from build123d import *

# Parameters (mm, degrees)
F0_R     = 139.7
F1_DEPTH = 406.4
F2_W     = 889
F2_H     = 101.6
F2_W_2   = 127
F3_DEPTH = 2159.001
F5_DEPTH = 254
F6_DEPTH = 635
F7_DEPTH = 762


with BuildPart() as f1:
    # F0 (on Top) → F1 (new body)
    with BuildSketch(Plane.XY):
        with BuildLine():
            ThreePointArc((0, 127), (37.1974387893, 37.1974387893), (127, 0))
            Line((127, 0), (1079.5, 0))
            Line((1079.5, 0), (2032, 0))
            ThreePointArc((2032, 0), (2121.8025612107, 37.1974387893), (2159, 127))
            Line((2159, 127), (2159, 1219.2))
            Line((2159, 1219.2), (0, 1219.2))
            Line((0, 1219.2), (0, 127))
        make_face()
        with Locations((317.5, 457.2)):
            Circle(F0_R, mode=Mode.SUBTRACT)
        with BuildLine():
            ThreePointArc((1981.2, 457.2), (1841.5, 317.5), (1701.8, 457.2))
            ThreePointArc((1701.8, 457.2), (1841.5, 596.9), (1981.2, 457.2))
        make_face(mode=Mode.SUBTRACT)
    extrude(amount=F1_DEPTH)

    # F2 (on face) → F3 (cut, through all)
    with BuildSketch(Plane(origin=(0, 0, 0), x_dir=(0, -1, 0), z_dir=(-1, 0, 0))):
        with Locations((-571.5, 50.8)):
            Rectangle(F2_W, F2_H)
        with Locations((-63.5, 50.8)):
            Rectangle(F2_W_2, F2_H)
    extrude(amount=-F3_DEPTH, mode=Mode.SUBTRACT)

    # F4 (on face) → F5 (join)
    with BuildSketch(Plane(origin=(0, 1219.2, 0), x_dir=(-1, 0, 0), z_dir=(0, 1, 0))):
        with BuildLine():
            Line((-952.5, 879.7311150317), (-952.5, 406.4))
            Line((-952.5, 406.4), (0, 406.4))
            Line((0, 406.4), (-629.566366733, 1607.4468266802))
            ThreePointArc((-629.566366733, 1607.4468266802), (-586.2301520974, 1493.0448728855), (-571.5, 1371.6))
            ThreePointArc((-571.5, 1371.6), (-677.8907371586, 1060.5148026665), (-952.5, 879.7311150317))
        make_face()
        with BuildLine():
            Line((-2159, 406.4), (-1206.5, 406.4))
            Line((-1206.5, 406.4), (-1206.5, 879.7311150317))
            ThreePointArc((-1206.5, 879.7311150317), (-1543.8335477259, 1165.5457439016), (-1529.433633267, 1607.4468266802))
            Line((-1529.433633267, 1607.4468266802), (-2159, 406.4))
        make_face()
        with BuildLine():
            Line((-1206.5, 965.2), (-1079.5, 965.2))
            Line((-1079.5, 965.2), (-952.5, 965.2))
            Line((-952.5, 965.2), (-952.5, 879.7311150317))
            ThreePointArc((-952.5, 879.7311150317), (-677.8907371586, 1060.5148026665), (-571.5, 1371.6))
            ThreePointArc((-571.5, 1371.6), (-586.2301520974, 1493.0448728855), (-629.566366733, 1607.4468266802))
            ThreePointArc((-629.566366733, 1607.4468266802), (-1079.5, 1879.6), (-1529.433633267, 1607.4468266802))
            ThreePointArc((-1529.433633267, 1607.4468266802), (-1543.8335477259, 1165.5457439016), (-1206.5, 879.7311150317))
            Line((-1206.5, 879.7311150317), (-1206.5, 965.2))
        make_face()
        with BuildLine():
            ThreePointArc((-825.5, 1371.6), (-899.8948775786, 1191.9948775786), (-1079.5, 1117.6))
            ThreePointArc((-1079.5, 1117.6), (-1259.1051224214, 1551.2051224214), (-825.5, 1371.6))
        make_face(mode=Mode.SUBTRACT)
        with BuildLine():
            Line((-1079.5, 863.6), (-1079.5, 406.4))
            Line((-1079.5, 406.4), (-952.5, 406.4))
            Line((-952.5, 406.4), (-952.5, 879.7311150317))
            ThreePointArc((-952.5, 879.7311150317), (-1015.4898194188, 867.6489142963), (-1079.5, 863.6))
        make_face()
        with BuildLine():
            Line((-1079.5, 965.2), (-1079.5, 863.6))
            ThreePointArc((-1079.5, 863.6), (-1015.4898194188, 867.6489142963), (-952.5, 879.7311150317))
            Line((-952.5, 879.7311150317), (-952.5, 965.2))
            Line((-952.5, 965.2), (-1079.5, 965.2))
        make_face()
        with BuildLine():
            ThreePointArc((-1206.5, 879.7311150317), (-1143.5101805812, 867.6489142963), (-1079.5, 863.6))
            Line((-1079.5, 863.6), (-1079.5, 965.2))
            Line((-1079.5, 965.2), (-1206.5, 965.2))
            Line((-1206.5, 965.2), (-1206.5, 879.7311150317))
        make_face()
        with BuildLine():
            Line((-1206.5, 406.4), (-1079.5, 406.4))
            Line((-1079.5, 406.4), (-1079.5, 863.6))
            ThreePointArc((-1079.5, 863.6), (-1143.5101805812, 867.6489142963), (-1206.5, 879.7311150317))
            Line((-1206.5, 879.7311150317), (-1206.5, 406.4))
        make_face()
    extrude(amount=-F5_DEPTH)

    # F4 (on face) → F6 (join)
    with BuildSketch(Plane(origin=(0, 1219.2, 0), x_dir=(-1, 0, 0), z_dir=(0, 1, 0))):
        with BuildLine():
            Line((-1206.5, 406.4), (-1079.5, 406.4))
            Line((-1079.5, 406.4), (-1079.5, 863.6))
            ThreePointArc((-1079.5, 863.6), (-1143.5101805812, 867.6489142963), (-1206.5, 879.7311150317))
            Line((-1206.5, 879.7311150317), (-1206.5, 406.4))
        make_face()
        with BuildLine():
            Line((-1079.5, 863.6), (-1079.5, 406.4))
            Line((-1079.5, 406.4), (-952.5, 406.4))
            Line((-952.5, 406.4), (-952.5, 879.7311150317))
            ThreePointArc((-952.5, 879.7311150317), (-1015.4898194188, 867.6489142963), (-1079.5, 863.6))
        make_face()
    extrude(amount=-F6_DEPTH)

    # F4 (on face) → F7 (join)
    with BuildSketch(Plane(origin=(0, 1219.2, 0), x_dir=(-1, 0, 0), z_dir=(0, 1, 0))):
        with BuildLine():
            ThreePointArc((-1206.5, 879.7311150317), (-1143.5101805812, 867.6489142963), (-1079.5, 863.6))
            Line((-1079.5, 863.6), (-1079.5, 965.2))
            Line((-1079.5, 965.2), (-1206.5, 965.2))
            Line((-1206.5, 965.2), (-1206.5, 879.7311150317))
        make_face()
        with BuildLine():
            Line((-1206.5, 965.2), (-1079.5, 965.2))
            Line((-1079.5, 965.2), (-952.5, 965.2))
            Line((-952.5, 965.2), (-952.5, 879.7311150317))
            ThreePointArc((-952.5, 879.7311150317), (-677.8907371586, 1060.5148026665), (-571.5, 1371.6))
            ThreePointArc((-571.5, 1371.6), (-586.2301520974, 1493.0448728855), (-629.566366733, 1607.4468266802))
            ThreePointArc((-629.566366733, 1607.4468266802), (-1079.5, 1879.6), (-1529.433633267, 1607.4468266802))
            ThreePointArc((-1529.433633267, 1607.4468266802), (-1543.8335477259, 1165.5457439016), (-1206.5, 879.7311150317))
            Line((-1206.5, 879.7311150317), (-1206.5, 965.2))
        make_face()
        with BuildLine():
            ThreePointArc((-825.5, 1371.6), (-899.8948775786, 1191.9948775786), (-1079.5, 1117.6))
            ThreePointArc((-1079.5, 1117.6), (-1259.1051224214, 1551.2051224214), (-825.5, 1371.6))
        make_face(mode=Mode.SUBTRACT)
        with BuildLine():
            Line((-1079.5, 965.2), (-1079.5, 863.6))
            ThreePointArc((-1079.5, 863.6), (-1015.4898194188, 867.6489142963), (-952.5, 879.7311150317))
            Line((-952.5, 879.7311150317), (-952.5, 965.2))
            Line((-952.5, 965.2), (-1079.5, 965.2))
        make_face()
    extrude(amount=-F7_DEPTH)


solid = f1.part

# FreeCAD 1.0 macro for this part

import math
import FreeCAD as App
import Part
import Sketcher
from FreeCAD import Vector
Q = App.Units.Quantity


def add_polygon(sketch, points):
    """Adds a closed chain of lines whose ends are joined by coincident constraints."""
    first, n = sketch.GeometryCount, len(points)
    for a, b in zip(points, points[1:] + points[:1]):
        sketch.addGeometry(Part.LineSegment(App.Vector(*a, 0), App.Vector(*b, 0)), False)
    for i in range(n):
        sketch.addConstraint(Sketcher.Constraint("Coincident", first + i, 2, first + (i + 1) % n, 1))

doc = App.newDocument("Part")
body = doc.addObject("PartDesign::Body", "Body")

# Sketch on XY plane
sketch1 = doc.addObject("Sketcher::SketchObject", "Sketch")
body.addObject(sketch1)
sketch1.AttachmentSupport = (doc.XY_Plane, [""])
sketch1.MapMode = "FlatFace"
sketch1.addGeometry([
    Part.ArcOfCircle(Part.Circle(Vector(127, 127, 0), Vector(0, 0, 1), 127), math.radians(180), math.radians(270)),  # 0
    Part.LineSegment(Vector(127, 0, 0), Vector(2032, 0, 0)),  # 1
    Part.ArcOfCircle(Part.Circle(Vector(2032, 127, 0), Vector(0, 0, 1), 127), math.radians(-90), math.radians(0)),  # 2
    Part.LineSegment(Vector(2159, 127, 0), Vector(2159, 1219, 0)),  # 3
    Part.LineSegment(Vector(2159, 1219, 0), Vector(0, 1219, 0)),  # 4
    Part.LineSegment(Vector(0, 1219, 0), Vector(0, 127, 0)),  # 5
    Part.Circle(Vector(318, 457, 0), Vector(0, 0, 1), 140),  # 6
    Part.Circle(Vector(1842, 457, 0), Vector(0, 0, 1), 140),  # 7
], False)
sketch1.addConstraint([
    Sketcher.Constraint("Tangent", 0, 2, 1, 1),
    Sketcher.Constraint("Tangent", 1, 2, 2, 1),
    Sketcher.Constraint("Tangent", 2, 2, 3, 1),
    Sketcher.Constraint("Coincident", 3, 2, 4, 1),
    Sketcher.Constraint("Coincident", 4, 2, 5, 1),
    Sketcher.Constraint("Tangent", 5, 2, 0, 1),
    Sketcher.Constraint("Horizontal", 1),
    Sketcher.Constraint("Vertical", 3),
    Sketcher.Constraint("Horizontal", 4),
    Sketcher.Constraint("Vertical", 5),
    Sketcher.Constraint("Equal", 0, 2),
    Sketcher.Constraint("Equal", 6, 7),
    Sketcher.Constraint("PointOnObject", 0, 2, -1),
    Sketcher.Constraint("PointOnObject", 4, 2, -2),
    Sketcher.Constraint("Horizontal", 6, 3, 7, 3),
    Sketcher.Constraint("Diameter", 6, Q("11 in")),
    Sketcher.Constraint("Radius", 0, Q("5 in")),
    Sketcher.Constraint("DistanceX", 1, 1, 1, 2, Q("75 in")),
    Sketcher.Constraint("DistanceY", 3, 1, 3, 2, Q("43 in")),
    Sketcher.Constraint("DistanceY", -1, 1, 6, 3, Q("18 in")),
    Sketcher.Constraint("DistanceX", 6, 3, 7, 3, Q("60 in")),
    Sketcher.Constraint("DistanceX", -1, 1, 6, 3, Q("12.5 in")),
])
pad1 = doc.addObject("PartDesign::Pad", "Pad")
body.addObject(pad1)
pad1.Profile = sketch1
pad1.Length = Q("16 in")

# Sketch on YZ plane
sketch2 = doc.addObject("Sketcher::SketchObject", "Sketch001")
body.addObject(sketch2)
sketch2.AttachmentSupport = (doc.YZ_Plane, [""])
sketch2.MapMode = "FlatFace"
add_polygon(sketch2, [(1016, 102), (1016, 0), (0, 0), (0, 102)])  # lines 0-3
sketch2.addConstraint([
    Sketcher.Constraint("Vertical", 0),
    Sketcher.Constraint("Horizontal", 1),
    Sketcher.Constraint("Vertical", 2),
    Sketcher.Constraint("Horizontal", 3),
    Sketcher.Constraint("Coincident", 1, 2, -1, 1),
    Sketcher.Constraint("DistanceX", 1, 2, 1, 1, Q("40 in")),
    Sketcher.Constraint("DistanceY", 0, 2, 0, 1, Q("4 in")),
])
pocket1 = doc.addObject("PartDesign::Pocket", "Pocket")
body.addObject(pocket1)
pocket1.Profile = sketch2
pocket1.Type = "ThroughAll"
pocket1.Reversed = True

# Sketch on XZ plane
sketch3 = doc.addObject("Sketcher::SketchObject", "Sketch002")
body.addObject(sketch3)
sketch3.AttachmentSupport = (doc.XZ_Plane, [""])
sketch3.MapMode = "FlatFace"
sketch3.AttachmentOffset = App.Placement(Vector(0, 0, -48 * 25.4), App.Rotation())
sketch3.addGeometry([
    Part.LineSegment(Vector(0, 406, 0), Vector(630, 1607, 0)),  # 0
    Part.ArcOfCircle(Part.Circle(Vector(1080, 1372, 0), Vector(0, 0, 1), 508), math.radians(28), math.radians(152)),  # 1
    Part.LineSegment(Vector(1529, 1607, 0), Vector(2159, 406, 0)),  # 2
    Part.LineSegment(Vector(2159, 406, 0), Vector(0, 406, 0)),  # 3
    Part.Circle(Vector(1080, 1372, 0), Vector(0, 0, 1), 254),  # 4
], False)
sketch3.addConstraint([
    Sketcher.Constraint("Tangent", 0, 2, 1, 2),
    Sketcher.Constraint("Tangent", 1, 1, 2, 1),
    Sketcher.Constraint("Coincident", 2, 2, 3, 1),
    Sketcher.Constraint("Coincident", 3, 2, 0, 1),
    Sketcher.Constraint("Horizontal", 3),
    Sketcher.Constraint("Coincident", 4, 3, 1, 3),
    Sketcher.Constraint("PointOnObject", 3, 2, -2),
    Sketcher.Constraint("Equal", 0, 2),
    Sketcher.Constraint("Diameter", 4, Q("20 in")),
    Sketcher.Constraint("Radius", 1, Q("20 in")),
    Sketcher.Constraint("DistanceX", 3, 2, 3, 1, Q("85 in")),
    Sketcher.Constraint("DistanceY", -1, 1, 1, 3, Q("54 in")),
    Sketcher.Constraint("DistanceY", -1, 1, 2, 2, Q("16 in")),
])
pad2 = doc.addObject("PartDesign::Pad", "Pad001")
body.addObject(pad2)
pad2.Profile = sketch3
pad2.Length = Q("10 in")

# Sketch on XZ plane
sketch4 = doc.addObject("Sketcher::SketchObject", "Sketch003")
body.addObject(sketch4)
sketch4.AttachmentSupport = (doc.XZ_Plane, [""])
sketch4.MapMode = "FlatFace"
sketch4.AttachmentOffset = App.Placement(Vector(0, 0, -48 * 25.4), App.Rotation())
sketch4.addGeometry([
    Part.LineSegment(Vector(1206, 406, 0), Vector(952, 406, 0)),
    Part.LineSegment(Vector(952, 406, 0), Vector(952, 880, 0)),
    Part.ArcOfCircle(Part.Circle(Vector(1080, 1372, 0), Vector(0, 0, 1), 508), math.radians(-104), math.radians(-76)),
    Part.LineSegment(Vector(1206, 880, 0), Vector(1206, 406, 0)),
], False)
sketch4.addConstraint([
    Sketcher.Constraint("Coincident", 0, 2, 1, 1),
    Sketcher.Constraint("Coincident", 1, 2, 2, 1),
    Sketcher.Constraint("Coincident", 2, 2, 3, 1),
    Sketcher.Constraint("Coincident", 3, 2, 0, 1),
    Sketcher.Constraint("Horizontal", 0),
    Sketcher.Constraint("Vertical", 1),
    Sketcher.Constraint("Vertical", 3),
    Sketcher.Constraint("Horizontal", 1, 2, 2, 2),
    Sketcher.Constraint("Radius", 2, Q("20 in")),
    Sketcher.Constraint("DistanceX", 0, 2, 0, 1, Q("10 in")),
    Sketcher.Constraint("DistanceY", -1, 1, 2, 3, Q("54 in")),
    Sketcher.Constraint("DistanceY", -1, 1, 0, 2, Q("16 in")),
    Sketcher.Constraint("DistanceX", -1, 1, 2, 3, Q("42.5 in")),
])
pad3 = doc.addObject("PartDesign::Pad", "Pad002")
body.addObject(pad3)
pad3.Profile = sketch4
pad3.Length = Q("25 in")

# Sketch on XZ plane
sketch5 = doc.addObject("Sketcher::SketchObject", "Sketch004")
body.addObject(sketch5)
sketch5.AttachmentSupport = (doc.XZ_Plane, [""])
sketch5.MapMode = "FlatFace"
sketch5.AttachmentOffset = App.Placement(Vector(0, 0, -48 * 25.4), App.Rotation())
sketch5.addGeometry([
    Part.Circle(Vector(1080, 1372, 0), Vector(0, 0, 1), 508),
    Part.Circle(Vector(1080, 1372, 0), Vector(0, 0, 1), 254),
], False)
sketch5.addConstraint([
    Sketcher.Constraint("Coincident", 1, 3, 0, 3),
    Sketcher.Constraint("Diameter", 0, Q("40 in")),
    Sketcher.Constraint("Diameter", 1, Q("20 in")),
    Sketcher.Constraint("DistanceY", -1, 1, 0, 3, Q("54 in")),
    Sketcher.Constraint("DistanceX", -1, 1, 0, 3, Q("42.5 in")),
])
pad4 = doc.addObject("PartDesign::Pad", "Pad003")
body.addObject(pad4)
pad4.Profile = sketch5
pad4.Length = Q("30 in")

doc.recompute()
